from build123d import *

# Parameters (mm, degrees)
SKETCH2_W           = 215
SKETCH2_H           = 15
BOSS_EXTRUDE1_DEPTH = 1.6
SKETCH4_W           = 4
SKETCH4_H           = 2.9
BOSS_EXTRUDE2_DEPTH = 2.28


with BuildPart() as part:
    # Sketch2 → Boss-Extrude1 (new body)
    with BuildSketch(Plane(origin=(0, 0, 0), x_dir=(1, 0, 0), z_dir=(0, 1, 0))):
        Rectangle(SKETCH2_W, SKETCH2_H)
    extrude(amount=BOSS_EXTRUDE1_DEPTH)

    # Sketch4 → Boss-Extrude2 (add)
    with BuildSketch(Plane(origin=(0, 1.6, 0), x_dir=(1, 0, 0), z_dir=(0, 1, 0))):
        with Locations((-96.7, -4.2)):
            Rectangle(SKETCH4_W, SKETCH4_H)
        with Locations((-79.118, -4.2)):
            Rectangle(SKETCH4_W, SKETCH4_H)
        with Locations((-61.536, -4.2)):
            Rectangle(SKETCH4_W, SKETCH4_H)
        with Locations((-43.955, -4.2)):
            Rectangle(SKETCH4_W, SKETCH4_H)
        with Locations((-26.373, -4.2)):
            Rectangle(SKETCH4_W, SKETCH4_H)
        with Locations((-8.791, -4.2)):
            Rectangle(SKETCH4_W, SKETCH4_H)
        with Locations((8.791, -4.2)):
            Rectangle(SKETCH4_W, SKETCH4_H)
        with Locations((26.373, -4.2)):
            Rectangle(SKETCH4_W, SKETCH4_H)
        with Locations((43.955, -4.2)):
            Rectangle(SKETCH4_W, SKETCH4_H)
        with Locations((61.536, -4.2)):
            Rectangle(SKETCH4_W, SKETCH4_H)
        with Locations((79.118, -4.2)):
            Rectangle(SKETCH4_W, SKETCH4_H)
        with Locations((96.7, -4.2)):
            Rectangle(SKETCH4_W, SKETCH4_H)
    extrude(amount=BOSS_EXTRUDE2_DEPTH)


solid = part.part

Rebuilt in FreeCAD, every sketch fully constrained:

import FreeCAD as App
import Part
import Sketcher

doc = App.newDocument("Part")
params = doc.addObject("Spreadsheet::Sheet", "Params")
for row, (alias, value) in enumerate([
    ("sketch1_width", "215 mm"),
    ("sketch1_height", "15 mm"),
    ("pad1_length", "1.6 mm"),
    ("sketch2_width", "4 mm"),
    ("sketch2_height", "2.9 mm"),
    ("pad2_length", "2.28 mm"),
], start=1):
    params.set(f"A{row}", alias)
    params.set(f"B{row}", "=" + value)
    params.setAlias(f"B{row}", alias)

body = doc.addObject("PartDesign::Body", "Body")

sketch1 = body.newObject("Sketcher::SketchObject", "Sketch")
sketch1.AttachmentSupport = (doc.getObject("XZ_Plane"), [""])
sketch1.MapMode = "FlatFace"
sketch1.addGeometry(Part.LineSegment(App.Vector(-107.5, -7.5, 0), App.Vector(-107.5, 7.5, 0)), False)
sketch1.addGeometry(Part.LineSegment(App.Vector(-107.5, 7.5, 0), App.Vector(107.5, 7.5, 0)), False)
sketch1.addGeometry(Part.LineSegment(App.Vector(107.5, 7.5, 0), App.Vector(107.5, -7.5, 0)), False)
sketch1.addGeometry(Part.LineSegment(App.Vector(107.5, -7.5, 0), App.Vector(-107.5, -7.5, 0)), False)
sketch1.addConstraint(Sketcher.Constraint("Coincident", 0, 2, 1, 1))
sketch1.addConstraint(Sketcher.Constraint("Coincident", 1, 2, 2, 1))
sketch1.addConstraint(Sketcher.Constraint("Coincident", 2, 2, 3, 1))
sketch1.addConstraint(Sketcher.Constraint("Coincident", 3, 2, 0, 1))
sketch1.addConstraint(Sketcher.Constraint("Vertical", 0))
sketch1.addConstraint(Sketcher.Constraint("Horizontal", 1))
sketch1.addConstraint(Sketcher.Constraint("Vertical", 2))
sketch1.addConstraint(Sketcher.Constraint("Horizontal", 3))
sketch1.addConstraint(Sketcher.Constraint("Symmetric", 0, 2, 2, 2, -1, 1))
sketch1.addConstraint(Sketcher.Constraint("DistanceX", 1, 1, 1, 2, 215.0))
sketch1.addConstraint(Sketcher.Constraint("DistanceY", 0, 1, 0, 2, 15.0))
sketch1.setExpression("Constraints[9]", "Params.sketch1_width")
sketch1.setExpression("Constraints[10]", "Params.sketch1_height")
pad1 = body.newObject("PartDesign::Pad", "Pad")
pad1.Profile = sketch1
pad1.setExpression("Length", "Params.pad1_length")
pad1.Reversed = True

sketch2 = body.newObject("Sketcher::SketchObject", "Sketch001")
sketch2.AttachmentSupport = (doc.getObject("XZ_Plane"), [""])
sketch2.MapMode = "FlatFace"
sketch2.AttachmentOffset = App.Placement(App.Vector(0, 0, -1.6), App.Rotation())
sketch2.addGeometry(Part.LineSegment(App.Vector(-98.7, 2.75, 0), App.Vector(-98.7, 5.65, 0)), False)
sketch2.addGeometry(Part.LineSegment(App.Vector(-98.7, 5.65, 0), App.Vector(-94.7, 5.65, 0)), False)
sketch2.addGeometry(Part.LineSegment(App.Vector(-94.7, 5.65, 0), App.Vector(-94.7, 2.75, 0)), False)
sketch2.addGeometry(Part.LineSegment(App.Vector(-94.7, 2.75, 0), App.Vector(-98.7, 2.75, 0)), False)
sketch2.addGeometry(Part.LineSegment(App.Vector(-81.118, 2.75, 0), App.Vector(-81.118, 5.65, 0)), False)
sketch2.addGeometry(Part.LineSegment(App.Vector(-81.118, 5.65, 0), App.Vector(-77.118, 5.65, 0)), False)
sketch2.addGeometry(Part.LineSegment(App.Vector(-77.118, 5.65, 0), App.Vector(-77.118, 2.75, 0)), False)
sketch2.addGeometry(Part.LineSegment(App.Vector(-77.118, 2.75, 0), App.Vector(-81.118, 2.75, 0)), False)
sketch2.addGeometry(Part.LineSegment(App.Vector(-63.536, 2.75, 0), App.Vector(-63.536, 5.65, 0)), False)
sketch2.addGeometry(Part.LineSegment(App.Vector(-63.536, 5.65, 0), App.Vector(-59.536, 5.65, 0)), False)
sketch2.addGeometry(Part.LineSegment(App.Vector(-59.536, 5.65, 0), App.Vector(-59.536, 2.75, 0)), False)
sketch2.addGeometry(Part.LineSegment(App.Vector(-59.536, 2.75, 0), App.Vector(-63.536, 2.75, 0)), False)
sketch2.addGeometry(Part.LineSegment(App.Vector(-45.955, 2.75, 0), App.Vector(-45.955, 5.65, 0)), False)
sketch2.addGeometry(Part.LineSegment(App.Vector(-45.955, 5.65, 0), App.Vector(-41.955, 5.65, 0)), False)
sketch2.addGeometry(Part.LineSegment(App.Vector(-41.955, 5.65, 0), App.Vector(-41.955, 2.75, 0)), False)
sketch2.addGeometry(Part.LineSegment(App.Vector(-41.955, 2.75, 0), App.Vector(-45.955, 2.75, 0)), False)
sketch2.addGeometry(Part.LineSegment(App.Vector(-28.373, 2.75, 0), App.Vector(-28.373, 5.65, 0)), False)
sketch2.addGeometry(Part.LineSegment(App.Vector(-28.373, 5.65, 0), App.Vector(-24.373, 5.65, 0)), False)
sketch2.addGeometry(Part.LineSegment(App.Vector(-24.373, 5.65, 0), App.Vector(-24.373, 2.75, 0)), False)
sketch2.addGeometry(Part.LineSegment(App.Vector(-24.373, 2.75, 0), App.Vector(-28.373, 2.75, 0)), False)
sketch2.addGeometry(Part.LineSegment(App.Vector(-10.791, 2.75, 0), App.Vector(-10.791, 5.65, 0)), False)
sketch2.addGeometry(Part.LineSegment(App.Vector(-10.791, 5.65, 0), App.Vector(-6.791, 5.65, 0)), False)
sketch2.addGeometry(Part.LineSegment(App.Vector(-6.791, 5.65, 0), App.Vector(-6.791, 2.75, 0)), False)
sketch2.addGeometry(Part.LineSegment(App.Vector(-6.791, 2.75, 0), App.Vector(-10.791, 2.75, 0)), False)
sketch2.addGeometry(Part.LineSegment(App.Vector(6.791, 2.75, 0), App.Vector(6.791, 5.65, 0)), False)
sketch2.addGeometry(Part.LineSegment(App.Vector(6.791, 5.65, 0), App.Vector(10.791, 5.65, 0)), False)
sketch2.addGeometry(Part.LineSegment(App.Vector(10.791, 5.65, 0), App.Vector(10.791, 2.75, 0)), False)
sketch2.addGeometry(Part.LineSegment(App.Vector(10.791, 2.75, 0), App.Vector(6.791, 2.75, 0)), False)
sketch2.addGeometry(Part.LineSegment(App.Vector(24.373, 2.75, 0), App.Vector(24.373, 5.65, 0)), False)
sketch2.addGeometry(Part.LineSegment(App.Vector(24.373, 5.65, 0), App.Vector(28.373, 5.65, 0)), False)
sketch2.addGeometry(Part.LineSegment(App.Vector(28.373, 5.65, 0), App.Vector(28.373, 2.75, 0)), False)
sketch2.addGeometry(Part.LineSegment(App.Vector(28.373, 2.75, 0), App.Vector(24.373, 2.75, 0)), False)
sketch2.addGeometry(Part.LineSegment(App.Vector(41.955, 2.75, 0), App.Vector(41.955, 5.65, 0)), False)
sketch2.addGeometry(Part.LineSegment(App.Vector(41.955, 5.65, 0), App.Vector(45.955, 5.65, 0)), False)
sketch2.addGeometry(Part.LineSegment(App.Vector(45.955, 5.65, 0), App.Vector(45.955, 2.75, 0)), False)
sketch2.addGeometry(Part.LineSegment(App.Vector(45.955, 2.75, 0), App.Vector(41.955, 2.75, 0)), False)
sketch2.addGeometry(Part.LineSegment(App.Vector(59.536, 2.75, 0), App.Vector(59.536, 5.65, 0)), False)
sketch2.addGeometry(Part.LineSegment(App.Vector(59.536, 5.65, 0), App.Vector(63.536, 5.65, 0)), False)
sketch2.addGeometry(Part.LineSegment(App.Vector(63.536, 5.65, 0), App.Vector(63.536, 2.75, 0)), False)
sketch2.addGeometry(Part.LineSegment(App.Vector(63.536, 2.75, 0), App.Vector(59.536, 2.75, 0)), False)
sketch2.addGeometry(Part.LineSegment(App.Vector(77.118, 2.75, 0), App.Vector(77.118, 5.65, 0)), False)
sketch2.addGeometry(Part.LineSegment(App.Vector(77.118, 5.65, 0), App.Vector(81.118, 5.65, 0)), False)
sketch2.addGeometry(Part.LineSegment(App.Vector(81.118, 5.65, 0), App.Vector(81.118, 2.75, 0)), False)
sketch2.addGeometry(Part.LineSegment(App.Vector(81.118, 2.75, 0), App.Vector(77.118, 2.75, 0)), False)
sketch2.addGeometry(Part.LineSegment(App.Vector(94.7, 2.75, 0), App.Vector(94.7, 5.65, 0)), False)
sketch2.addGeometry(Part.LineSegment(App.Vector(94.7, 5.65, 0), App.Vector(98.7, 5.65, 0)), False)
sketch2.addGeometry(Part.LineSegment(App.Vector(98.7, 5.65, 0), App.Vector(98.7, 2.75, 0)), False)
sketch2.addGeometry(Part.LineSegment(App.Vector(98.7, 2.75, 0), App.Vector(94.7, 2.75, 0)), False)
sketch2.addConstraint(Sketcher.Constraint("Coincident", 0, 2, 1, 1))
sketch2.addConstraint(Sketcher.Constraint("Coincident", 1, 2, 2, 1))
sketch2.addConstraint(Sketcher.Constraint("Coincident", 2, 2, 3, 1))
sketch2.addConstraint(Sketcher.Constraint("Coincident", 3, 2, 0, 1))
sketch2.addConstraint(Sketcher.Constraint("Coincident", 4, 2, 5, 1))
sketch2.addConstraint(Sketcher.Constraint("Coincident", 5, 2, 6, 1))
sketch2.addConstraint(Sketcher.Constraint("Coincident", 6, 2, 7, 1))
sketch2.addConstraint(Sketcher.Constraint("Coincident", 7, 2, 4, 1))
sketch2.addConstraint(Sketcher.Constraint("Coincident", 8, 2, 9, 1))
sketch2.addConstraint(Sketcher.Constraint("Coincident", 9, 2, 10, 1))
sketch2.addConstraint(Sketcher.Constraint("Coincident", 10, 2, 11, 1))
sketch2.addConstraint(Sketcher.Constraint("Coincident", 11, 2, 8, 1))
sketch2.addConstraint(Sketcher.Constraint("Coincident", 12, 2, 13, 1))
sketch2.addConstraint(Sketcher.Constraint("Coincident", 13, 2, 14, 1))
sketch2.addConstraint(Sketcher.Constraint("Coincident", 14, 2, 15, 1))
sketch2.addConstraint(Sketcher.Constraint("Coincident", 15, 2, 12, 1))
sketch2.addConstraint(Sketcher.Constraint("Coincident", 16, 2, 17, 1))
sketch2.addConstraint(Sketcher.Constraint("Coincident", 17, 2, 18, 1))
sketch2.addConstraint(Sketcher.Constraint("Coincident", 18, 2, 19, 1))
sketch2.addConstraint(Sketcher.Constraint("Coincident", 19, 2, 16, 1))
sketch2.addConstraint(Sketcher.Constraint("Coincident", 20, 2, 21, 1))
sketch2.addConstraint(Sketcher.Constraint("Coincident", 21, 2, 22, 1))
sketch2.addConstraint(Sketcher.Constraint("Coincident", 22, 2, 23, 1))
sketch2.addConstraint(Sketcher.Constraint("Coincident", 23, 2, 20, 1))
sketch2.addConstraint(Sketcher.Constraint("Coincident", 24, 2, 25, 1))
sketch2.addConstraint(Sketcher.Constraint("Coincident", 25, 2, 26, 1))
sketch2.addConstraint(Sketcher.Constraint("Coincident", 26, 2, 27, 1))
sketch2.addConstraint(Sketcher.Constraint("Coincident", 27, 2, 24, 1))
sketch2.addConstraint(Sketcher.Constraint("Coincident", 28, 2, 29, 1))
sketch2.addConstraint(Sketcher.Constraint("Coincident", 29, 2, 30, 1))
sketch2.addConstraint(Sketcher.Constraint("Coincident", 30, 2, 31, 1))
sketch2.addConstraint(Sketcher.Constraint("Coincident", 31, 2, 28, 1))
sketch2.addConstraint(Sketcher.Constraint("Coincident", 32, 2, 33, 1))
sketch2.addConstraint(Sketcher.Constraint("Coincident", 33, 2, 34, 1))
sketch2.addConstraint(Sketcher.Constraint("Coincident", 34, 2, 35, 1))
sketch2.addConstraint(Sketcher.Constraint("Coincident", 35, 2, 32, 1))
sketch2.addConstraint(Sketcher.Constraint("Coincident", 36, 2, 37, 1))
sketch2.addConstraint(Sketcher.Constraint("Coincident", 37, 2, 38, 1))
sketch2.addConstraint(Sketcher.Constraint("Coincident", 38, 2, 39, 1))
sketch2.addConstraint(Sketcher.Constraint("Coincident", 39, 2, 36, 1))
sketch2.addConstraint(Sketcher.Constraint("Coincident", 40, 2, 41, 1))
sketch2.addConstraint(Sketcher.Constraint("Coincident", 41, 2, 42, 1))
sketch2.addConstraint(Sketcher.Constraint("Coincident", 42, 2, 43, 1))
sketch2.addConstraint(Sketcher.Constraint("Coincident", 43, 2, 40, 1))
sketch2.addConstraint(Sketcher.Constraint("Coincident", 44, 2, 45, 1))
sketch2.addConstraint(Sketcher.Constraint("Coincident", 45, 2, 46, 1))
sketch2.addConstraint(Sketcher.Constraint("Coincident", 46, 2, 47, 1))
sketch2.addConstraint(Sketcher.Constraint("Coincident", 47, 2, 44, 1))
sketch2.addConstraint(Sketcher.Constraint("Vertical", 0))
sketch2.addConstraint(Sketcher.Constraint("Horizontal", 1))
sketch2.addConstraint(Sketcher.Constraint("Vertical", 2))
sketch2.addConstraint(Sketcher.Constraint("Horizontal", 3))
sketch2.addConstraint(Sketcher.Constraint("Vertical", 4))
sketch2.addConstraint(Sketcher.Constraint("Horizontal", 5))
sketch2.addConstraint(Sketcher.Constraint("Vertical", 6))
sketch2.addConstraint(Sketcher.Constraint("Horizontal", 7))
sketch2.addConstraint(Sketcher.Constraint("Vertical", 8))
sketch2.addConstraint(Sketcher.Constraint("Horizontal", 9))
sketch2.addConstraint(Sketcher.Constraint("Vertical", 10))
sketch2.addConstraint(Sketcher.Constraint("Horizontal", 11))
sketch2.addConstraint(Sketcher.Constraint("Vertical", 12))
sketch2.addConstraint(Sketcher.Constraint("Horizontal", 13))
sketch2.addConstraint(Sketcher.Constraint("Vertical", 14))
sketch2.addConstraint(Sketcher.Constraint("Horizontal", 15))
sketch2.addConstraint(Sketcher.Constraint("Vertical", 16))
sketch2.addConstraint(Sketcher.Constraint("Horizontal", 17))
sketch2.addConstraint(Sketcher.Constraint("Vertical", 18))
sketch2.addConstraint(Sketcher.Constraint("Horizontal", 19))
sketch2.addConstraint(Sketcher.Constraint("Vertical", 20))
sketch2.addConstraint(Sketcher.Constraint("Horizontal", 21))
sketch2.addConstraint(Sketcher.Constraint("Vertical", 22))
sketch2.addConstraint(Sketcher.Constraint("Horizontal", 23))
sketch2.addConstraint(Sketcher.Constraint("Vertical", 24))
sketch2.addConstraint(Sketcher.Constraint("Horizontal", 25))
sketch2.addConstraint(Sketcher.Constraint("Vertical", 26))
sketch2.addConstraint(Sketcher.Constraint("Horizontal", 27))
sketch2.addConstraint(Sketcher.Constraint("Vertical", 28))
sketch2.addConstraint(Sketcher.Constraint("Horizontal", 29))
sketch2.addConstraint(Sketcher.Constraint("Vertical", 30))
sketch2.addConstraint(Sketcher.Constraint("Horizontal", 31))
sketch2.addConstraint(Sketcher.Constraint("Vertical", 32))
sketch2.addConstraint(Sketcher.Constraint("Horizontal", 33))
sketch2.addConstraint(Sketcher.Constraint("Vertical", 34))
sketch2.addConstraint(Sketcher.Constraint("Horizontal", 35))
sketch2.addConstraint(Sketcher.Constraint("Vertical", 36))
sketch2.addConstraint(Sketcher.Constraint("Horizontal", 37))
sketch2.addConstraint(Sketcher.Constraint("Vertical", 38))
sketch2.addConstraint(Sketcher.Constraint("Horizontal", 39))
sketch2.addConstraint(Sketcher.Constraint("Vertical", 40))
sketch2.addConstraint(Sketcher.Constraint("Horizontal", 41))
sketch2.addConstraint(Sketcher.Constraint("Vertical", 42))
sketch2.addConstraint(Sketcher.Constraint("Horizontal", 43))
sketch2.addConstraint(Sketcher.Constraint("Vertical", 44))
sketch2.addConstraint(Sketcher.Constraint("Horizontal", 45))
sketch2.addConstraint(Sketcher.Constraint("Vertical", 46))
sketch2.addConstraint(Sketcher.Constraint("Horizontal", 47))
sketch2.addConstraint(Sketcher.Constraint("Symmetric", 21, 2, 24, 2, -2))
sketch2.addConstraint(Sketcher.Constraint("Symmetric", 23, 2, 26, 2, -2))
sketch2.addConstraint(Sketcher.Constraint("Symmetric", 17, 2, 28, 2, -2))
sketch2.addConstraint(Sketcher.Constraint("Symmetric", 19, 2, 30, 2, -2))
sketch2.addConstraint(Sketcher.Constraint("Symmetric", 13, 2, 32, 2, -2))
sketch2.addConstraint(Sketcher.Constraint("Symmetric", 15, 2, 34, 2, -2))
sketch2.addConstraint(Sketcher.Constraint("Symmetric", 9, 2, 36, 2, -2))
sketch2.addConstraint(Sketcher.Constraint("Symmetric", 11, 2, 38, 2, -2))
sketch2.addConstraint(Sketcher.Constraint("Symmetric", 5, 2, 40, 2, -2))
sketch2.addConstraint(Sketcher.Constraint("Symmetric", 7, 2, 42, 2, -2))
sketch2.addConstraint(Sketcher.Constraint("Symmetric", 1, 2, 44, 2, -2))
sketch2.addConstraint(Sketcher.Constraint("Symmetric", 3, 2, 46, 2, -2))
sketch2.addConstraint(Sketcher.Constraint("Horizontal", 1, 2, 4, 2))
sketch2.addConstraint(Sketcher.Constraint("Horizontal", 3, 2, 6, 2))
sketch2.addConstraint(Sketcher.Constraint("Horizontal", 5, 2, 8, 2))
sketch2.addConstraint(Sketcher.Constraint("Horizontal", 7, 2, 10, 2))
sketch2.addConstraint(Sketcher.Constraint("Horizontal", 9, 2, 12, 2))
sketch2.addConstraint(Sketcher.Constraint("Horizontal", 11, 2, 14, 2))
sketch2.addConstraint(Sketcher.Constraint("Horizontal", 13, 2, 16, 2))
sketch2.addConstraint(Sketcher.Constraint("Horizontal", 15, 2, 18, 2))
sketch2.addConstraint(Sketcher.Constraint("Horizontal", 17, 2, 20, 2))
sketch2.addConstraint(Sketcher.Constraint("Horizontal", 19, 2, 22, 2))
sketch2.addConstraint(Sketcher.Constraint("Equal", 3, 5))
sketch2.addConstraint(Sketcher.Constraint("Equal", 7, 9))
sketch2.addConstraint(Sketcher.Constraint("Equal", 11, 13))
sketch2.addConstraint(Sketcher.Constraint("Equal", 15, 17))
sketch2.addConstraint(Sketcher.Constraint("Equal", 19, 21))
sketch2.addConstraint(Sketcher.Constraint("DistanceX", 1, 1, 1, 2, 4.0))
sketch2.addConstraint(Sketcher.Constraint("DistanceY", 0, 1, 0, 2, 2.9))
sketch2.addConstraint(Sketcher.Constraint("DistanceX", 0, 2, -1, 1, 98.7))
sketch2.addConstraint(Sketcher.Constraint("DistanceY", -1, 1, 0, 2, 5.65))
sketch2.addConstraint(Sketcher.Constraint("DistanceX", 4, 2, -1, 1, 81.118))
sketch2.addConstraint(Sketcher.Constraint("DistanceX", 8, 2, -1, 1, 63.536))
sketch2.addConstraint(Sketcher.Constraint("DistanceX", 12, 2, -1, 1, 45.955))
sketch2.addConstraint(Sketcher.Constraint("DistanceX", 16, 2, -1, 1, 28.373))
sketch2.addConstraint(Sketcher.Constraint("DistanceX", 20, 2, -1, 1, 10.791))
sketch2.setExpression("Constraints[123]", "Params.sketch2_width")
sketch2.setExpression("Constraints[124]", "Params.sketch2_height")
pad2 = body.newObject("PartDesign::Pad", "Pad001")
pad2.Profile = sketch2
pad2.setExpression("Length", "Params.pad2_length")
pad2.Reversed = True

doc.recompute()
